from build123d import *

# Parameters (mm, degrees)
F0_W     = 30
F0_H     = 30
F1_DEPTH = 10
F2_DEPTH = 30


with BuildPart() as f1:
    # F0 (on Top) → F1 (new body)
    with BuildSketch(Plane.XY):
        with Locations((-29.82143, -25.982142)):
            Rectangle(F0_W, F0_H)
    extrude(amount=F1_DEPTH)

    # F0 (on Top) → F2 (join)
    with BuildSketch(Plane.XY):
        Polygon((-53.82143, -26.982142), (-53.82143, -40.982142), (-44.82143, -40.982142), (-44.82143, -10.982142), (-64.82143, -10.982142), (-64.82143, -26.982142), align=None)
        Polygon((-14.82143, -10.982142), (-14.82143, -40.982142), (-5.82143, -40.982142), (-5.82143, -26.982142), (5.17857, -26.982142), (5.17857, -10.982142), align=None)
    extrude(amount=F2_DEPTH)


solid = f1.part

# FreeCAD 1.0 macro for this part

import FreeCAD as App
import Part
import Sketcher

V = App.Vector

doc = App.newDocument("Part")
body = doc.addObject("PartDesign::Body", "Body")

sketch1 = doc.addObject("Sketcher::SketchObject", "Sketch")
body.addObject(sketch1)
sketch1.AttachmentSupport = (doc.XY_Plane, [""])
sketch1.MapMode = "FlatFace"
sketch1.addGeometry(Part.LineSegment(V(-44.82143, -10.982142, 0), V(-44.82143, -40.982142, 0)), False)
sketch1.addGeometry(Part.LineSegment(V(-44.82143, -40.982142, 0), V(-14.82143, -40.982142, 0)), False)
sketch1.addGeometry(Part.LineSegment(V(-14.82143, -40.982142, 0), V(-14.82143, -10.982142, 0)), False)
sketch1.addGeometry(Part.LineSegment(V(-14.82143, -10.982142, 0), V(-44.82143, -10.982142, 0)), False)
sketch1.addConstraint(Sketcher.Constraint("Coincident", 0, 2, 1, 1))
sketch1.addConstraint(Sketcher.Constraint("Coincident", 1, 2, 2, 1))
sketch1.addConstraint(Sketcher.Constraint("Coincident", 2, 2, 3, 1))
sketch1.addConstraint(Sketcher.Constraint("Coincident", 3, 2, 0, 1))
sketch1.addConstraint(Sketcher.Constraint("Vertical", 0))
sketch1.addConstraint(Sketcher.Constraint("Horizontal", 1))
sketch1.addConstraint(Sketcher.Constraint("Vertical", 2))
sketch1.addConstraint(Sketcher.Constraint("Horizontal", 3))
sketch1.addConstraint(Sketcher.Constraint("Equal", 3, 0))
sketch1.addConstraint(Sketcher.Constraint("DistanceX", 1, 1, 1, 2, 30.0))
sketch1.addConstraint(Sketcher.Constraint("DistanceX", 0, 2, -1, 1, 44.82143))
sketch1.addConstraint(Sketcher.Constraint("DistanceY", 0, 2, -1, 1, 40.982142))
pad1 = doc.addObject("PartDesign::Pad", "Pad")
body.addObject(pad1)
pad1.Profile = sketch1
pad1.Length = 10

sketch2 = doc.addObject("Sketcher::SketchObject", "Sketch001")
body.addObject(sketch2)
sketch2.AttachmentSupport = (doc.XY_Plane, [""])
sketch2.MapMode = "FlatFace"
sketch2.addGeometry(Part.LineSegment(V(-53.82143, -26.982142, 0), V(-53.82143, -40.982142, 0)), False)
sketch2.addGeometry(Part.LineSegment(V(-53.82143, -40.982142, 0), V(-44.82143, -40.982142, 0)), False)
sketch2.addGeometry(Part.LineSegment(V(-44.82143, -40.982142, 0), V(-44.82143, -10.982142, 0)), False)
sketch2.addGeometry(Part.LineSegment(V(-44.82143, -10.982142, 0), V(-64.82143, -10.982142, 0)), False)
sketch2.addGeometry(Part.LineSegment(V(-64.82143, -10.982142, 0), V(-64.82143, -26.982142, 0)), False)
sketch2.addGeometry(Part.LineSegment(V(-64.82143, -26.982142, 0), V(-53.82143, -26.982142, 0)), False)
sketch2.addGeometry(Part.LineSegment(V(-14.82143, -10.982142, 0), V(-14.82143, -40.982142, 0)), False)
sketch2.addGeometry(Part.LineSegment(V(-14.82143, -40.982142, 0), V(-5.82143, -40.982142, 0)), False)
sketch2.addGeometry(Part.LineSegment(V(-5.82143, -40.982142, 0), V(-5.82143, -26.982142, 0)), False)
sketch2.addGeometry(Part.LineSegment(V(-5.82143, -26.982142, 0), V(5.17857, -26.982142, 0)), False)
sketch2.addGeometry(Part.LineSegment(V(5.17857, -26.982142, 0), V(5.17857, -10.982142, 0)), False)
sketch2.addGeometry(Part.LineSegment(V(5.17857, -10.982142, 0), V(-14.82143, -10.982142, 0)), False)
sketch2.addConstraint(Sketcher.Constraint("Coincident", 0, 2, 1, 1))
sketch2.addConstraint(Sketcher.Constraint("Coincident", 1, 2, 2, 1))
sketch2.addConstraint(Sketcher.Constraint("Coincident", 2, 2, 3, 1))
sketch2.addConstraint(Sketcher.Constraint("Coincident", 3, 2, 4, 1))
sketch2.addConstraint(Sketcher.Constraint("Coincident", 4, 2, 5, 1))
sketch2.addConstraint(Sketcher.Constraint("Coincident", 5, 2, 0, 1))
sketch2.addConstraint(Sketcher.Constraint("Coincident", 6, 2, 7, 1))
sketch2.addConstraint(Sketcher.Constraint("Coincident", 7, 2, 8, 1))
sketch2.addConstraint(Sketcher.Constraint("Coincident", 8, 2, 9, 1))
sketch2.addConstraint(Sketcher.Constraint("Coincident", 9, 2, 10, 1))
sketch2.addConstraint(Sketcher.Constraint("Coincident", 10, 2, 11, 1))
sketch2.addConstraint(Sketcher.Constraint("Coincident", 11, 2, 6, 1))
sketch2.addConstraint(Sketcher.Constraint("Vertical", 0))
sketch2.addConstraint(Sketcher.Constraint("Horizontal", 1))
sketch2.addConstraint(Sketcher.Constraint("Vertical", 2))
sketch2.addConstraint(Sketcher.Constraint("Horizontal", 3))
sketch2.addConstraint(Sketcher.Constraint("Vertical", 4))
sketch2.addConstraint(Sketcher.Constraint("Horizontal", 5))
sketch2.addConstraint(Sketcher.Constraint("Vertical", 6))
sketch2.addConstraint(Sketcher.Constraint("Horizontal", 7))
sketch2.addConstraint(Sketcher.Constraint("Vertical", 8))
sketch2.addConstraint(Sketcher.Constraint("Horizontal", 9))
sketch2.addConstraint(Sketcher.Constraint("Vertical", 10))
sketch2.addConstraint(Sketcher.Constraint("Horizontal", 11))
sketch2.addConstraint(Sketcher.Constraint("Horizontal", 1, 2, 6, 2))
sketch2.addConstraint(Sketcher.Constraint("Horizontal", 5, 2, 8, 2))
sketch2.addConstraint(Sketcher.Constraint("Horizontal", 3, 2, 10, 2))
sketch2.addConstraint(Sketcher.Constraint("Equal", 1, 7))
sketch2.addConstraint(Sketcher.Constraint("Equal", 5, 9))
sketch2.addConstraint(Sketcher.Constraint("DistanceX", 1, 1, 1, 2, 9.0))
sketch2.addConstraint(Sketcher.Constraint("DistanceX", 3, 2, 3, 1, 20.0))
sketch2.addConstraint(Sketcher.Constraint("DistanceY", 0, 2, 0, 1, 14.0))
sketch2.addConstraint(Sketcher.Constraint("DistanceY", 2, 1, 2, 2, 30.0))
sketch2.addConstraint(Sketcher.Constraint("DistanceX", 1, 2, 6, 2, 30.0))
sketch2.addConstraint(Sketcher.Constraint("DistanceX", 0, 2, -1, 1, 53.82143))
sketch2.addConstraint(Sketcher.Constraint("DistanceY", 4, 2, -1, 1, 26.982142))
pad2 = doc.addObject("PartDesign::Pad", "Pad001")
body.addObject(pad2)
pad2.Profile = sketch2
pad2.Length = 30

doc.recompute()
